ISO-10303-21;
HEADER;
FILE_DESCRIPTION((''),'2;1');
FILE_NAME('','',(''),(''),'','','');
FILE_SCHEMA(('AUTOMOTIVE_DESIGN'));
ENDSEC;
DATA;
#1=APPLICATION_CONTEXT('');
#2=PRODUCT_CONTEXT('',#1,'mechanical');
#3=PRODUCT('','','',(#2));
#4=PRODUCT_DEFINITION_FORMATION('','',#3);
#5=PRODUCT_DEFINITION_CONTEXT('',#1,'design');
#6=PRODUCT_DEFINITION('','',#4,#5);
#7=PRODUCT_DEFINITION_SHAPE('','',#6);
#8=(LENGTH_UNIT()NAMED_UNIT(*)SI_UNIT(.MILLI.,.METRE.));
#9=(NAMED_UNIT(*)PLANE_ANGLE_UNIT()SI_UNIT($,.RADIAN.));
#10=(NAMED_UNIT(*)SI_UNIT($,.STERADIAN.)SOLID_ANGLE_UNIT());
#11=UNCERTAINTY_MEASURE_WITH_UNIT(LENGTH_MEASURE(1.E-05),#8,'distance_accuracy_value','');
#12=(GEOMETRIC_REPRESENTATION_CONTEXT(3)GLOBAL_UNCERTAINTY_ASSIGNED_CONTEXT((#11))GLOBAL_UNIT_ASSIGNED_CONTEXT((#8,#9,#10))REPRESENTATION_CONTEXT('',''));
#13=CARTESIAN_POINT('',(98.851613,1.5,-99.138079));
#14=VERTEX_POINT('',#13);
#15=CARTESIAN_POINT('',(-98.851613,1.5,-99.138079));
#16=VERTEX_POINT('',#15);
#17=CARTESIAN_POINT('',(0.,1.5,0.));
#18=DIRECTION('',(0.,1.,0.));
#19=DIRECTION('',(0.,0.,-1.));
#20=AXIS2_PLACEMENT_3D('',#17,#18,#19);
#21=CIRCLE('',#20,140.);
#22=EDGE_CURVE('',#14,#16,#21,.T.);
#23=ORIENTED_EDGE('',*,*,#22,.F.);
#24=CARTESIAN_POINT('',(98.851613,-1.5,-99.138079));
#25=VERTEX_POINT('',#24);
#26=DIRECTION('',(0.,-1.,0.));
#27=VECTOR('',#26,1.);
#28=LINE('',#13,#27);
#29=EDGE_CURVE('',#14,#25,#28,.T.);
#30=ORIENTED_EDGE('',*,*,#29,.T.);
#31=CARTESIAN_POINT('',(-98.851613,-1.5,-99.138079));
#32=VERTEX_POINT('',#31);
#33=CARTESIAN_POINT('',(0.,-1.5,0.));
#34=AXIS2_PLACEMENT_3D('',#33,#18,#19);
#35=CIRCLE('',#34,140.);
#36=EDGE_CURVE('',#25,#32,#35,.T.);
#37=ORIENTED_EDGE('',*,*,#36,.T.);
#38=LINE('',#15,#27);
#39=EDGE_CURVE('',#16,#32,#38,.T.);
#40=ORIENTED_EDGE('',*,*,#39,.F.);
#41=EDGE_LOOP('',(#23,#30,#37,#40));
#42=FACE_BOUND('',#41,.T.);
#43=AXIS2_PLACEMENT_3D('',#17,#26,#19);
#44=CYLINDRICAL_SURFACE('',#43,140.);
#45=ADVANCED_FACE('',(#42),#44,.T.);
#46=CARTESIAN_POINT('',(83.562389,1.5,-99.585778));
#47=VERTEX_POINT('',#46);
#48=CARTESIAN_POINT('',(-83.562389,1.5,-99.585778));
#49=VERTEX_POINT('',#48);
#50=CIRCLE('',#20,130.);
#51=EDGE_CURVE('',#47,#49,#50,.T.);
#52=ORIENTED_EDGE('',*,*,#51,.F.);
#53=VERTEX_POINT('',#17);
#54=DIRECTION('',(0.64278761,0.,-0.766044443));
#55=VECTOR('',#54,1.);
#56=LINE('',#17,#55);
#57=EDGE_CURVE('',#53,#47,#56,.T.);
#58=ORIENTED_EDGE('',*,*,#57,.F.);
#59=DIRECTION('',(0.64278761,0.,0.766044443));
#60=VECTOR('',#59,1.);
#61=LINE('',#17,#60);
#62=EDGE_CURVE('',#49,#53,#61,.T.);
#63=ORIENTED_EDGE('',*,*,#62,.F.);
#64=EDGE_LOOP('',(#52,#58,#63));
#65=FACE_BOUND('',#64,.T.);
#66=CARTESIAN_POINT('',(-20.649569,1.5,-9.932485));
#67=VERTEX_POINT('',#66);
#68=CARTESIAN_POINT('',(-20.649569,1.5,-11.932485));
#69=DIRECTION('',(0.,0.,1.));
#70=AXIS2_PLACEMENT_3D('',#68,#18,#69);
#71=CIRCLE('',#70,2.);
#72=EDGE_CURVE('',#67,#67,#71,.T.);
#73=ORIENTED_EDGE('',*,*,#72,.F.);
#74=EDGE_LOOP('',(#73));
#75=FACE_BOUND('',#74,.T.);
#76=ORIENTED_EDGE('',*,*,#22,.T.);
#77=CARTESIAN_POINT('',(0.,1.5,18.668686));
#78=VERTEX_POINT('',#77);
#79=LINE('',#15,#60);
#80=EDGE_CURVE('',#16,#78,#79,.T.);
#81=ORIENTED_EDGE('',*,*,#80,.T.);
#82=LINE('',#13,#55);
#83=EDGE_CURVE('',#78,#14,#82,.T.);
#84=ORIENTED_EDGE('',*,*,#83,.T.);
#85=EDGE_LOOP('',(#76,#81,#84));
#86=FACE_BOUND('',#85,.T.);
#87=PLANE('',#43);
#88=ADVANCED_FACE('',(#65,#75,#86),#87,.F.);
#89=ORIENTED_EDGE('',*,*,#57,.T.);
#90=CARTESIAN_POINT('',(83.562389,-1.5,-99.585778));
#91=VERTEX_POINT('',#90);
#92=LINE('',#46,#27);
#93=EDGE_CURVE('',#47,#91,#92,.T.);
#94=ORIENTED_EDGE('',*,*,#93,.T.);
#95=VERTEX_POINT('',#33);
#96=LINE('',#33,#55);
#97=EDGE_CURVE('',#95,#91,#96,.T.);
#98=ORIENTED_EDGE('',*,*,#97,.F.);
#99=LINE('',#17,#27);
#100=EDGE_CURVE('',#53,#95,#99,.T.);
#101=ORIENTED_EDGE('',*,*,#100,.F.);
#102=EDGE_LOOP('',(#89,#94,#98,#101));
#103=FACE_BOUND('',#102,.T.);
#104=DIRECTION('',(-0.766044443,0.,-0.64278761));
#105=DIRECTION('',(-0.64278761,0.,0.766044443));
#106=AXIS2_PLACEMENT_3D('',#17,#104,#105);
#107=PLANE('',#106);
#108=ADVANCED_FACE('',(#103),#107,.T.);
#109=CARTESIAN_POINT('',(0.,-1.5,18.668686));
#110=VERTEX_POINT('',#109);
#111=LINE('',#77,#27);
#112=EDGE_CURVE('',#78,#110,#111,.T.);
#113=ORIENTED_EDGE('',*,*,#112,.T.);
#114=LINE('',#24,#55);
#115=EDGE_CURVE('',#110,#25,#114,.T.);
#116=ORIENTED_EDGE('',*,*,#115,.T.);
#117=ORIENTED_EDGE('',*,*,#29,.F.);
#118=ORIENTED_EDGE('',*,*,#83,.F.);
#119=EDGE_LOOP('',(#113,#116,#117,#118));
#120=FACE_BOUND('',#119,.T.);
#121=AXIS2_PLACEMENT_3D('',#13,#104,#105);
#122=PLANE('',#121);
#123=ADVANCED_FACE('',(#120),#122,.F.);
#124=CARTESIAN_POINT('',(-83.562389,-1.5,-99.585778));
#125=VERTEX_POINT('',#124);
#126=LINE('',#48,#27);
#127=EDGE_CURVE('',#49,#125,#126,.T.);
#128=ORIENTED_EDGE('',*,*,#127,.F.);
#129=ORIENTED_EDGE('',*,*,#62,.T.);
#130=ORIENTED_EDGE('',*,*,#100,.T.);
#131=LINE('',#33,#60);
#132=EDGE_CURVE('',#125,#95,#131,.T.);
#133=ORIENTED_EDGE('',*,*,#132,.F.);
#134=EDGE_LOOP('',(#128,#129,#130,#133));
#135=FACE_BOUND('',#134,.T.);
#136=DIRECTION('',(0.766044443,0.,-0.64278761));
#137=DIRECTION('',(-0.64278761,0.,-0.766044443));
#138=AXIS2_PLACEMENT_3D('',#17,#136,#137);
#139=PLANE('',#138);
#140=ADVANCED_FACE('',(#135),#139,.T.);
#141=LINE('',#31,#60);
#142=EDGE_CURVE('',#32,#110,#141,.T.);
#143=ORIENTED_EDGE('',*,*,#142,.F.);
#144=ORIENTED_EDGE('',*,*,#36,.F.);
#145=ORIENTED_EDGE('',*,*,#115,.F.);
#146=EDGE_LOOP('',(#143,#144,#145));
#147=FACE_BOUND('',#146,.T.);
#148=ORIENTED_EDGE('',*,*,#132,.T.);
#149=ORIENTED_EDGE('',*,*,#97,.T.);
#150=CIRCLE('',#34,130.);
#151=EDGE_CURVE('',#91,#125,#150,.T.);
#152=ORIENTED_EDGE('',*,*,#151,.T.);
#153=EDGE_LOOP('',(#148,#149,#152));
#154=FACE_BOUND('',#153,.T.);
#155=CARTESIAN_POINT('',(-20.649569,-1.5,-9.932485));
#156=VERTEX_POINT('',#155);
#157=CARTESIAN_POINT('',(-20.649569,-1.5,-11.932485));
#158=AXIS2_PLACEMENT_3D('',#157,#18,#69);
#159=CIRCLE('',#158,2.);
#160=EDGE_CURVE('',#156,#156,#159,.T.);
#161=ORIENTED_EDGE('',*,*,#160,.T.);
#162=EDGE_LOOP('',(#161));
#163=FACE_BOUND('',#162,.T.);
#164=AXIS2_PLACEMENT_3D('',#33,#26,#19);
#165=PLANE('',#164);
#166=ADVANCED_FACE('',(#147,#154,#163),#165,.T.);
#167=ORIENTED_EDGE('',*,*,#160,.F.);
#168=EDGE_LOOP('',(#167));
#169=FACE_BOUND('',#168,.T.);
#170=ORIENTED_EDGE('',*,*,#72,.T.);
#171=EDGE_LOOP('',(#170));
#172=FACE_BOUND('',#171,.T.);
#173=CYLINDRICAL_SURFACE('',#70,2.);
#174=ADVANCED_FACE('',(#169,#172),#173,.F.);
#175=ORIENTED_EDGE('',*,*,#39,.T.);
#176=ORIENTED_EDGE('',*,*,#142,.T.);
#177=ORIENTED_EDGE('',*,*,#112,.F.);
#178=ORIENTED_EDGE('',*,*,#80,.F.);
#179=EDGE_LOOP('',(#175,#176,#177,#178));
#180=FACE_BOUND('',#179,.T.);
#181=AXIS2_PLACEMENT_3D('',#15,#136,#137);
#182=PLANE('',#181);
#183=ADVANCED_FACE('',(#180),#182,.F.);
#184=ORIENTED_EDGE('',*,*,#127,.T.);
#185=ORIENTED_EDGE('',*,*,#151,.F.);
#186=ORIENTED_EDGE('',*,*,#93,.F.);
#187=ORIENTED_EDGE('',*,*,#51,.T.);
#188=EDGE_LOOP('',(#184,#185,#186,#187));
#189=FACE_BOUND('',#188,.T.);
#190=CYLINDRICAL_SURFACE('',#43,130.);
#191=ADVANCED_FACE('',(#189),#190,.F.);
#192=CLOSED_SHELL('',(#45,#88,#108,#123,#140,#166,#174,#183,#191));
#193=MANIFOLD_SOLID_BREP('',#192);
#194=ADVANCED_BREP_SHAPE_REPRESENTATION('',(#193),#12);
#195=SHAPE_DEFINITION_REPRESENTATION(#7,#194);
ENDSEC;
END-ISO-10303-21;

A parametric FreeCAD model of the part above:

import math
import FreeCAD as App
import Part
import Sketcher
from FreeCAD import Vector
Q = App.Units.Quantity

doc = App.newDocument("Part")
body = doc.addObject("PartDesign::Body", "Body")

sketch1 = body.newObject("Sketcher::SketchObject", "Sketch")
sketch1.AttachmentSupport = (doc.getObject("XZ_Plane"), [""])
sketch1.MapMode = "FlatFace"
sketch1.addGeometry([
    Part.LineSegment(Vector(-99, -99, 0), Vector(0, 19, 0)),
    Part.LineSegment(Vector(0, 19, 0), Vector(99, -99, 0)),
    Part.ArcOfCircle(Part.Circle(Vector(0, 0, 0), Vector(0, 0, 1), 140), math.radians(-50), math.radians(-45.08)),
    Part.ArcOfCircle(Part.Circle(Vector(0, 0, 0), Vector(0, 0, 1), 140), math.radians(-130), math.radians(-50)),
    Part.ArcOfCircle(Part.Circle(Vector(0, 0, 0), Vector(0, 0, 1), 140), math.radians(-134.92), math.radians(-130)),
    Part.LineSegment(Vector(84, -100, 0), Vector(0, 0, 0)),
    Part.LineSegment(Vector(0, 0, 0), Vector(-84, -100, 0)),
    Part.ArcOfCircle(Part.Circle(Vector(0, 0, 0), Vector(0, 0, 1), 130), math.radians(-130), math.radians(-50)),
], False)
sketch1.addConstraint([
    Sketcher.Constraint("Coincident", 0, 2, 1, 1),
    Sketcher.Constraint("Coincident", 1, 2, 2, 2),
    Sketcher.Constraint("Tangent", 2, 1, 3, 2),
    Sketcher.Constraint("Tangent", 3, 1, 4, 2),
    Sketcher.Constraint("Coincident", 4, 1, 0, 1),
    Sketcher.Constraint("Coincident", 5, 2, 6, 1),
    Sketcher.Constraint("Coincident", 6, 2, 7, 1),
    Sketcher.Constraint("Coincident", 7, 2, 5, 1),
    Sketcher.Constraint("Coincident", 2, 3, -1, 1),
    Sketcher.Constraint("Coincident", 4, 3, -1, 1),
    Sketcher.Constraint("Coincident", 7, 3, -1, 1),
    Sketcher.Constraint("Coincident", 5, 2, -1, 1),
    Sketcher.Constraint("PointOnObject", 0, 2, -2),
    Sketcher.Constraint("Parallel", 1, 5),
    Sketcher.Constraint("Parallel", 0, 6),
    Sketcher.Constraint("Horizontal", 2, 1, 3, 1),
    Sketcher.Constraint("Horizontal", 1, 2, 4, 1),
    Sketcher.Constraint("Radius", 2, 140.000001),
    Sketcher.Constraint("Radius", 7, 130.0),
    Sketcher.Constraint("Angle", 0, Q("50 deg")),
    Sketcher.Constraint("DistanceY", 6, 2, 4, 1, 0.447699),
    Sketcher.Constraint("DistanceX", -1, 1, 2, 1, 89.990265),
])
pad1 = body.newObject("PartDesign::Pad", "Pad")
pad1.Profile = sketch1
pad1.Length = 3
pad1.Midplane = True

sketch2 = body.newObject("Sketcher::SketchObject", "Sketch001")
sketch2.AttachmentSupport = (doc.getObject("XZ_Plane"), [""])
sketch2.MapMode = "FlatFace"
sketch2.AttachmentOffset = App.Placement(Vector(0, 0, -1.5), App.Rotation())
sketch2.addGeometry([
    Part.Circle(Vector(65, -50, 0), Vector(0, 0, 1), 2),
    Part.Circle(Vector(-65, -50, 0), Vector(0, 0, 1), 2),
    Part.Circle(Vector(-20.6, -11.9, 0), Vector(0, 0, 1), 2),
], False)
sketch2.addConstraint([
    Sketcher.Constraint("Equal", 0, 1),
    Sketcher.Constraint("Equal", 1, 2),
    Sketcher.Constraint("Symmetric", 0, 3, 1, 3, -2),
    Sketcher.Constraint("Diameter", 0, 4.0),
    Sketcher.Constraint("DistanceX", -1, 1, 0, 3, 65.0),
    Sketcher.Constraint("DistanceY", 0, 3, -1, 1, 50.0),
    Sketcher.Constraint("DistanceX", 2, 3, -1, 1, 20.649569),
    Sketcher.Constraint("DistanceY", 2, 3, -1, 1, 11.932485),
])
doc.recompute()
hole = body.newObject("PartDesign::Hole", "Hole")
hole.Profile = sketch2
hole.ThreadType = "None"
hole.Diameter = 4
hole.DepthType = "ThroughAll"
hole.Reversed = True

doc.recompute()
